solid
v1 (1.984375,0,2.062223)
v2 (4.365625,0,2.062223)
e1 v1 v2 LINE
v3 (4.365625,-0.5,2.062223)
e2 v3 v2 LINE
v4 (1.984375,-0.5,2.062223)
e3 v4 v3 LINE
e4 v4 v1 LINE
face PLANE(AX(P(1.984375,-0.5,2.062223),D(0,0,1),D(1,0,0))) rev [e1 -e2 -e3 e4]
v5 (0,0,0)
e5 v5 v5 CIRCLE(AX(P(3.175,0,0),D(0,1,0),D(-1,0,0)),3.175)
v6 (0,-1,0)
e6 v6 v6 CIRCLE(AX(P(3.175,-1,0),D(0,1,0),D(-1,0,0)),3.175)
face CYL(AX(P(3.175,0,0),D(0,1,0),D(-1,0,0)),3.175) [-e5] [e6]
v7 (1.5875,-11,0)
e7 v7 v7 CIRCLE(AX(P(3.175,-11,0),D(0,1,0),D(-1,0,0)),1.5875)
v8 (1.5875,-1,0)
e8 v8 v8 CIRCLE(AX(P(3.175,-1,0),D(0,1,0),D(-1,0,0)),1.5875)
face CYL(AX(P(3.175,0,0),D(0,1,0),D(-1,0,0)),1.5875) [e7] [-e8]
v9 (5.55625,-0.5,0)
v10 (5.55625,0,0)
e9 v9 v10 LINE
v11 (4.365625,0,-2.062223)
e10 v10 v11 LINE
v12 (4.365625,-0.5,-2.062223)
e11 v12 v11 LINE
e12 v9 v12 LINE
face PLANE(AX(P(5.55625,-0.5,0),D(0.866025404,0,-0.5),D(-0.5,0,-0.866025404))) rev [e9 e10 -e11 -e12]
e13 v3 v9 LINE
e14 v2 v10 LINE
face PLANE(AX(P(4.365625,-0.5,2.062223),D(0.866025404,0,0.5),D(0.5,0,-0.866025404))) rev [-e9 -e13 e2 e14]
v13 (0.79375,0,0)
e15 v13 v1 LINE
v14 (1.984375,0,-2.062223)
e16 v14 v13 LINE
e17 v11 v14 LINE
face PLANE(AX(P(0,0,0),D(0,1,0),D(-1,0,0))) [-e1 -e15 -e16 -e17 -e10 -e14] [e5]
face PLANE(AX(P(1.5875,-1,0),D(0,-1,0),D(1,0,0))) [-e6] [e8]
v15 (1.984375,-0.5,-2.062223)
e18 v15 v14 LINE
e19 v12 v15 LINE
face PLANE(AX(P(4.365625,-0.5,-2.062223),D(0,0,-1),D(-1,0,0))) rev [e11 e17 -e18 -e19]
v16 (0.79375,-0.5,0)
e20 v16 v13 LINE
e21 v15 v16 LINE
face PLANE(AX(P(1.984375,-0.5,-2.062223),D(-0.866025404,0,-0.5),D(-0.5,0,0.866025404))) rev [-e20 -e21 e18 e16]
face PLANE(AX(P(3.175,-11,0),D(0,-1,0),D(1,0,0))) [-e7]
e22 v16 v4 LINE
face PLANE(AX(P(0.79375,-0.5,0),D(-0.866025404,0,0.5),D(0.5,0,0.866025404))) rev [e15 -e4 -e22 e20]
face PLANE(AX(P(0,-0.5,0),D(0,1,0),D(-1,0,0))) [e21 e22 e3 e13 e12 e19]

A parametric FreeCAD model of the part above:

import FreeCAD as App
import Part
import Sketcher

V = App.Vector
Q = App.Units.Quantity

doc = App.newDocument("Part")
params = doc.addObject("Spreadsheet::Sheet", "Params")
for row, (alias, value) in enumerate([
    ("sketch1_height", "1 mm"),
    ("sketch1_height2", "10 mm"),
    ("revolution_angle", "360 deg"),
    ("pocket1_length", "0.5 mm"),
], start=1):
    params.set(f"A{row}", alias)
    params.set(f"B{row}", "=" + value)
    params.setAlias(f"B{row}", alias)

body = doc.addObject("PartDesign::Body", "Body")

# Sketch on XY plane
sketch1 = doc.addObject("Sketcher::SketchObject", "Sketch")
body.addObject(sketch1)
sketch1.AttachmentSupport = (doc.XY_Plane, [""])
sketch1.MapMode = "FlatFace"
sketch1.addGeometry(Part.LineSegment(V(3.175, 0, 0), V(0, 0, 0)), False)
sketch1.addGeometry(Part.LineSegment(V(0, 0, 0), V(0, -1, 0)), False)
sketch1.addGeometry(Part.LineSegment(V(0, -1, 0), V(1.5875, -1, 0)), False)
sketch1.addGeometry(Part.LineSegment(V(1.5875, -1, 0), V(1.5875, -11, 0)), False)
sketch1.addGeometry(Part.LineSegment(V(1.5875, -11, 0), V(3.175, -11, 0)), False)
sketch1.addGeometry(Part.LineSegment(V(3.175, -11, 0), V(3.175, 0, 0)), False)
sketch1.addGeometry(Part.LineSegment(V(3.175, 0, 0), V(3.175, -11, 0)), True)  # axis
sketch1.addConstraint(Sketcher.Constraint("Coincident", 0, 2, 1, 1))
sketch1.addConstraint(Sketcher.Constraint("Coincident", 1, 2, 2, 1))
sketch1.addConstraint(Sketcher.Constraint("Coincident", 2, 2, 3, 1))
sketch1.addConstraint(Sketcher.Constraint("Coincident", 3, 2, 4, 1))
sketch1.addConstraint(Sketcher.Constraint("Coincident", 4, 2, 5, 1))
sketch1.addConstraint(Sketcher.Constraint("Coincident", 5, 2, 0, 1))
sketch1.addConstraint(Sketcher.Constraint("Horizontal", 0))
sketch1.addConstraint(Sketcher.Constraint("Vertical", 1))
sketch1.addConstraint(Sketcher.Constraint("Horizontal", 2))
sketch1.addConstraint(Sketcher.Constraint("Vertical", 3))
sketch1.addConstraint(Sketcher.Constraint("Horizontal", 4))
sketch1.addConstraint(Sketcher.Constraint("Vertical", 5))
sketch1.addConstraint(Sketcher.Constraint("Vertical", 6))
sketch1.addConstraint(Sketcher.Constraint("Coincident", 0, 2, -1, 1))
sketch1.addConstraint(Sketcher.Constraint("Coincident", 6, 1, 5, 2))
sketch1.addConstraint(Sketcher.Constraint("Horizontal", 3, 2, 6, 2))
sketch1.addConstraint(Sketcher.Constraint("Equal", 2, 4))
sketch1.addConstraint(Sketcher.Constraint("DistanceY", 1, 2, 1, 1, Q("1 mm")))
sketch1.addConstraint(Sketcher.Constraint("DistanceY", 3, 2, 3, 1, Q("10 mm")))
sketch1.addConstraint(Sketcher.Constraint("DistanceX", 0, 2, 0, 1, Q("3.175 mm")))
sketch1.setExpression("Constraints[17]", "Params.sketch1_height")
sketch1.setExpression("Constraints[18]", "Params.sketch1_height2")
revolution = doc.addObject("PartDesign::Revolution", "Revolution")
body.addObject(revolution)
revolution.Profile = sketch1
revolution.ReferenceAxis = (sketch1, ["Axis0"])
revolution.setExpression("Angle", "Params.revolution_angle")

# Sketch on XZ plane
sketch2 = doc.addObject("Sketcher::SketchObject", "Sketch001")
body.addObject(sketch2)
sketch2.AttachmentSupport = (doc.XZ_Plane, [""])
sketch2.MapMode = "FlatFace"
sketch2.addGeometry(Part.LineSegment(V(5.55625, 0, 0), V(4.365625, -2.062223, 0)), False)
sketch2.addGeometry(Part.LineSegment(V(4.365625, -2.062223, 0), V(1.984375, -2.062223, 0)), False)
sketch2.addGeometry(Part.LineSegment(V(1.984375, -2.062223, 0), V(0.79375, 0, 0)), False)
sketch2.addGeometry(Part.LineSegment(V(0.79375, 0, 0), V(1.984375, 2.062223, 0)), False)
sketch2.addGeometry(Part.LineSegment(V(1.984375, 2.062223, 0), V(4.365625, 2.062223, 0)), False)
sketch2.addGeometry(Part.LineSegment(V(4.365625, 2.062223, 0), V(5.55625, 0, 0)), False)
sketch2.addConstraint(Sketcher.Constraint("Coincident", 0, 2, 1, 1))
sketch2.addConstraint(Sketcher.Constraint("Coincident", 1, 2, 2, 1))
sketch2.addConstraint(Sketcher.Constraint("Coincident", 2, 2, 3, 1))
sketch2.addConstraint(Sketcher.Constraint("Coincident", 3, 2, 4, 1))
sketch2.addConstraint(Sketcher.Constraint("Coincident", 4, 2, 5, 1))
sketch2.addConstraint(Sketcher.Constraint("Coincident", 5, 2, 0, 1))
sketch2.addConstraint(Sketcher.Constraint("Horizontal", 1))
sketch2.addConstraint(Sketcher.Constraint("Horizontal", 4))
sketch2.addConstraint(Sketcher.Constraint("Symmetric", 1, 2, 3, 2, -1))
sketch2.addConstraint(Sketcher.Constraint("PointOnObject", 2, 2, -1))
sketch2.addConstraint(Sketcher.Constraint("PointOnObject", 5, 2, -1))
sketch2.addConstraint(Sketcher.Constraint("Parallel", 0, 3))
sketch2.addConstraint(Sketcher.Constraint("Parallel", 2, 5))
sketch2.addConstraint(Sketcher.Constraint("Angle", 0, Q("-120 deg")))
sketch2.addConstraint(Sketcher.Constraint("DistanceX", 1, 2, 1, 1, Q("2.38125 mm")))
sketch2.addConstraint(Sketcher.Constraint("DistanceX", 2, 2, 5, 2, Q("4.7625 mm")))
sketch2.addConstraint(Sketcher.Constraint("DistanceX", -1, 1, 2, 2, Q("0.79375 mm")))
pocket1 = doc.addObject("PartDesign::Pocket", "Pocket")
body.addObject(pocket1)
pocket1.Profile = sketch2
pocket1.setExpression("Length", "Params.pocket1_length")
pocket1.Reversed = True

doc.recompute()
